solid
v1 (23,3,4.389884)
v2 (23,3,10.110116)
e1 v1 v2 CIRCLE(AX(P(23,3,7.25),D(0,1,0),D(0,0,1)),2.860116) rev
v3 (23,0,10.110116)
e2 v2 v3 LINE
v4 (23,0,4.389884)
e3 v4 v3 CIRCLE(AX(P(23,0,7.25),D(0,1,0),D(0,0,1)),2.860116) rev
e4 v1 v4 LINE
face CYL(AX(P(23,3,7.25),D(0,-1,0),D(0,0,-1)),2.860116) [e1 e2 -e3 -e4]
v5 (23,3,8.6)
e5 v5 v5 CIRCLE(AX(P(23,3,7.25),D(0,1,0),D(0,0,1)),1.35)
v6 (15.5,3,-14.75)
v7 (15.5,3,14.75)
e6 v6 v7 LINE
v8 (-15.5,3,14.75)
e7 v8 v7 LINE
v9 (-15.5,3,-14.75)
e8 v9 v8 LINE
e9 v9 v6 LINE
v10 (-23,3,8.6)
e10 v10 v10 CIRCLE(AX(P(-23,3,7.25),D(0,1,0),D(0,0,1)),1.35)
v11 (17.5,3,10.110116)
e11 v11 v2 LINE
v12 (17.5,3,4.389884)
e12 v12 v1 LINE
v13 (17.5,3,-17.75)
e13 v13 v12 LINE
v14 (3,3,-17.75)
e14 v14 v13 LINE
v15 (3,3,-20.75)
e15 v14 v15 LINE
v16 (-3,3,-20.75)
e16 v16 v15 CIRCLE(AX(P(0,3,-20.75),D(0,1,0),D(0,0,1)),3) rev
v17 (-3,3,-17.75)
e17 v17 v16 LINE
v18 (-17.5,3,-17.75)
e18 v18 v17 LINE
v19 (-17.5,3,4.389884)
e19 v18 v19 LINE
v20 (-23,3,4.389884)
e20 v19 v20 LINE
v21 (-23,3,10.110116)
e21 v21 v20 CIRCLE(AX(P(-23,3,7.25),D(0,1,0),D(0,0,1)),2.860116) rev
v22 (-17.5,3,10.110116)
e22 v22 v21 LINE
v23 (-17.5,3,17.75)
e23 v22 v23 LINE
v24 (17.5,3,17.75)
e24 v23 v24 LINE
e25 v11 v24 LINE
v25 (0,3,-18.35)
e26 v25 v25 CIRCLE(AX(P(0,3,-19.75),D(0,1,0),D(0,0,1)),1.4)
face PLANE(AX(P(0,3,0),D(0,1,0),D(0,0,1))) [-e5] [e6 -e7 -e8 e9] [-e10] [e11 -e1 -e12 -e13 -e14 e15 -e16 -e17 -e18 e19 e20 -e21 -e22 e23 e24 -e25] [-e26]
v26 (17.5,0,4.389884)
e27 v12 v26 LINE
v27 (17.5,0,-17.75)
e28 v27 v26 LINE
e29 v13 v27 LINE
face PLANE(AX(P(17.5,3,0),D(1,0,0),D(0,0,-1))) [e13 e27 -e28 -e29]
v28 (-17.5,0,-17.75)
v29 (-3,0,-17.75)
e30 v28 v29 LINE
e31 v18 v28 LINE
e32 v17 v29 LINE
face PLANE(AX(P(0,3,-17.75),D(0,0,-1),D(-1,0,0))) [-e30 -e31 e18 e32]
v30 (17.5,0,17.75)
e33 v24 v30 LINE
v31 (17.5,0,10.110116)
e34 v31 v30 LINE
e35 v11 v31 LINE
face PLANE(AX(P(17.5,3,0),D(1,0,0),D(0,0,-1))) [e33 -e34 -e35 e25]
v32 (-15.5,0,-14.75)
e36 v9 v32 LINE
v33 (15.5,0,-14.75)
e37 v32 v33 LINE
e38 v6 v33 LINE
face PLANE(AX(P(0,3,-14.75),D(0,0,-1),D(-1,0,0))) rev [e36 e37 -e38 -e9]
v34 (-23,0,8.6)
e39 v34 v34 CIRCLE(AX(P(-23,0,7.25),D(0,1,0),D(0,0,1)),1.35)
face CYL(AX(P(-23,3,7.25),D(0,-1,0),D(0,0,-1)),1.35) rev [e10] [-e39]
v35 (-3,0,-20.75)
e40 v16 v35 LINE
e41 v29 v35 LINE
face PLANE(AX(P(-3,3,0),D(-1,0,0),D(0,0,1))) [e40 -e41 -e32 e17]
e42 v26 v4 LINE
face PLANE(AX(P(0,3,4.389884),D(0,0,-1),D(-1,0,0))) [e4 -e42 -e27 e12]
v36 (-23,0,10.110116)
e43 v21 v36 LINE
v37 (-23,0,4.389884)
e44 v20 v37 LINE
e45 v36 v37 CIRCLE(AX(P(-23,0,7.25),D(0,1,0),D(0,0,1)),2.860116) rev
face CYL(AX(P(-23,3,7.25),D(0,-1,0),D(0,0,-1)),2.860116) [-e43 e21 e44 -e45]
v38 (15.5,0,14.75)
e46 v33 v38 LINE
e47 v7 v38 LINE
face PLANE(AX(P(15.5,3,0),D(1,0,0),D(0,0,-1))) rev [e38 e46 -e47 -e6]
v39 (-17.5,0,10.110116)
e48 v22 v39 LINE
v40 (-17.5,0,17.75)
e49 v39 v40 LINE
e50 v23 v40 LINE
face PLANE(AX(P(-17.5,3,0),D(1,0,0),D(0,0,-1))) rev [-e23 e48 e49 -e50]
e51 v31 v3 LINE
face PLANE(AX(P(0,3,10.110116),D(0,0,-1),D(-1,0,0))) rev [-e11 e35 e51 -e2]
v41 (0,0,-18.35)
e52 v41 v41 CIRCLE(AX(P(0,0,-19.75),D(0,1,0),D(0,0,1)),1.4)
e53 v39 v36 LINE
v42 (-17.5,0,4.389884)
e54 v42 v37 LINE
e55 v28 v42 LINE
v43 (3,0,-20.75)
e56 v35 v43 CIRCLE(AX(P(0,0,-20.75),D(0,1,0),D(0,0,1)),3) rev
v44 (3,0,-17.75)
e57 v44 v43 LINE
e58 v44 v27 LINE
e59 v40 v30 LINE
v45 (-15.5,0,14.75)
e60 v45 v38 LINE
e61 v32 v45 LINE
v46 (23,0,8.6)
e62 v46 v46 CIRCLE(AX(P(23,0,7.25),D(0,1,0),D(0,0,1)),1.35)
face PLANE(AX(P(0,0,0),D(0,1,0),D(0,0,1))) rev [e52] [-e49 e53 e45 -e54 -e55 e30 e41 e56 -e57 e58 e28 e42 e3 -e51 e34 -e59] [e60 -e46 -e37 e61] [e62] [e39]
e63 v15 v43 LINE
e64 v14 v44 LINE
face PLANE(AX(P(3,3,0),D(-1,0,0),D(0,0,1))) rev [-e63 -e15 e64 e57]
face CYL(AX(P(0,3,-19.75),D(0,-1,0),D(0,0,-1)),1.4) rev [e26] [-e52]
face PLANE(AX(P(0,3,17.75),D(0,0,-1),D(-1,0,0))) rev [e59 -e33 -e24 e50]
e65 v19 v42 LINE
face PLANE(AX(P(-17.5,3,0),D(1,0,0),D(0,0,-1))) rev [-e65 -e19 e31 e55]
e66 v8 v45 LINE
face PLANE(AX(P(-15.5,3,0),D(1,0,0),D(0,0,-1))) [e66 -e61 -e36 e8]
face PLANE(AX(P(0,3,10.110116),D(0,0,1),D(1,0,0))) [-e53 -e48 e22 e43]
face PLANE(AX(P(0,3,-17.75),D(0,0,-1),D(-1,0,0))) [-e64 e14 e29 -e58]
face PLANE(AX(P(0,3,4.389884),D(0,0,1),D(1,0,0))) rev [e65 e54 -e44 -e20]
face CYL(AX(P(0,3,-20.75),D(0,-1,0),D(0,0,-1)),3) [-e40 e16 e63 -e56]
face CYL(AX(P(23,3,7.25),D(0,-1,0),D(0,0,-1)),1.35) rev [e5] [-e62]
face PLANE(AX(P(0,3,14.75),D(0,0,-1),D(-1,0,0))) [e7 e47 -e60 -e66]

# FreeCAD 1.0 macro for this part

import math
import FreeCAD as App
import Part
import Sketcher

V = App.Vector
Q = App.Units.Quantity

doc = App.newDocument("Part")
body = doc.addObject("PartDesign::Body", "Body")

# Sketch on XZ plane
sketch1 = body.newObject("Sketcher::SketchObject", "Sketch")
sketch1.AttachmentSupport = (doc.getObject("XZ_Plane"), [""])
sketch1.MapMode = "FlatFace"
sketch1.addGeometry([
    Part.LineSegment(V(-23, 10.110116, 0), V(-17.5, 10.110116, 0)),  # 0
    Part.LineSegment(V(-17.5, 10.110116, 0), V(-17.5, 17.75, 0)),  # 1
    Part.LineSegment(V(-17.5, 17.75, 0), V(17.5, 17.75, 0)),  # 2
    Part.LineSegment(V(17.5, 17.75, 0), V(17.5, 10.110116, 0)),  # 3
    Part.LineSegment(V(17.5, 10.110116, 0), V(23, 10.110116, 0)),  # 4
    Part.ArcOfCircle(Part.Circle(V(23, 7.25, 0), V(0, 0, 1), 2.860116), math.radians(-90), math.radians(90)),  # 5
    Part.LineSegment(V(23, 4.389884, 0), V(17.5, 4.389884, 0)),  # 6
    Part.LineSegment(V(17.5, 4.389884, 0), V(17.5, -17.75, 0)),  # 7
    Part.LineSegment(V(17.5, -17.75, 0), V(3, -17.75, 0)),  # 8
    Part.LineSegment(V(3, -17.75, 0), V(3, -20.75, 0)),  # 9
    Part.ArcOfCircle(Part.Circle(V(0, -20.75, 0), V(0, 0, 1), 3), math.radians(180), math.radians(360)),  # 10
    Part.LineSegment(V(-3, -20.75, 0), V(-3, -17.75, 0)),  # 11
    Part.LineSegment(V(-3, -17.75, 0), V(-17.5, -17.75, 0)),  # 12
    Part.LineSegment(V(-17.5, -17.75, 0), V(-17.5, 4.389884, 0)),  # 13
    Part.LineSegment(V(-17.5, 4.389884, 0), V(-23, 4.389884, 0)),  # 14
    Part.ArcOfCircle(Part.Circle(V(-23, 7.25, 0), V(0, 0, 1), 2.860116), math.radians(90), math.radians(270)),  # 15
    Part.Circle(V(-23, 7.25, 0), V(0, 0, 1), 1.35),  # 16
    Part.LineSegment(V(-15.5, 14.75, 0), V(-15.5, -14.75, 0)),  # 17
    Part.LineSegment(V(-15.5, -14.75, 0), V(15.5, -14.75, 0)),  # 18
    Part.LineSegment(V(15.5, -14.75, 0), V(15.5, 14.75, 0)),  # 19
    Part.LineSegment(V(15.5, 14.75, 0), V(-15.5, 14.75, 0)),  # 20
    Part.Circle(V(0, -19.75, 0), V(0, 0, 1), 1.4),  # 21
    Part.Circle(V(23, 7.25, 0), V(0, 0, 1), 1.35),  # 22
], False)
sketch1.addConstraint([
    Sketcher.Constraint("Coincident", 0, 2, 1, 1),
    Sketcher.Constraint("Coincident", 1, 2, 2, 1),
    Sketcher.Constraint("Coincident", 2, 2, 3, 1),
    Sketcher.Constraint("Coincident", 3, 2, 4, 1),
    Sketcher.Constraint("Tangent", 4, 2, 5, 2),
    Sketcher.Constraint("Tangent", 5, 1, 6, 1),
    Sketcher.Constraint("Coincident", 6, 2, 7, 1),
    Sketcher.Constraint("Coincident", 7, 2, 8, 1),
    Sketcher.Constraint("Coincident", 8, 2, 9, 1),
    Sketcher.Constraint("Tangent", 9, 2, 10, 2),
    Sketcher.Constraint("Tangent", 10, 1, 11, 1),
    Sketcher.Constraint("Coincident", 11, 2, 12, 1),
    Sketcher.Constraint("Coincident", 12, 2, 13, 1),
    Sketcher.Constraint("Coincident", 13, 2, 14, 1),
    Sketcher.Constraint("Tangent", 14, 2, 15, 2),
    Sketcher.Constraint("Tangent", 15, 1, 0, 1),
    Sketcher.Constraint("Coincident", 17, 2, 18, 1),
    Sketcher.Constraint("Coincident", 18, 2, 19, 1),
    Sketcher.Constraint("Coincident", 19, 2, 20, 1),
    Sketcher.Constraint("Coincident", 20, 2, 17, 1),
    Sketcher.Constraint("Horizontal", 0),
    Sketcher.Constraint("Vertical", 1),
    Sketcher.Constraint("Horizontal", 2),
    Sketcher.Constraint("Vertical", 3),
    Sketcher.Constraint("Horizontal", 4),
    Sketcher.Constraint("Horizontal", 6),
    Sketcher.Constraint("Vertical", 7),
    Sketcher.Constraint("Horizontal", 8),
    Sketcher.Constraint("Vertical", 9),
    Sketcher.Constraint("Vertical", 11),
    Sketcher.Constraint("Horizontal", 12),
    Sketcher.Constraint("Vertical", 13),
    Sketcher.Constraint("Horizontal", 14),
    Sketcher.Constraint("Vertical", 17),
    Sketcher.Constraint("Horizontal", 18),
    Sketcher.Constraint("Vertical", 19),
    Sketcher.Constraint("Horizontal", 20),
    Sketcher.Constraint("Coincident", 16, 3, 15, 3),
    Sketcher.Constraint("Coincident", 22, 3, 5, 3),
    Sketcher.Constraint("Equal", 5, 15),
    Sketcher.Constraint("Equal", 16, 22),
    Sketcher.Constraint("Symmetric", 1, 2, 7, 2, -1, 1),
    Sketcher.Constraint("Symmetric", 2, 2, 12, 2, -1, 1),
    Sketcher.Constraint("Symmetric", 17, 2, 19, 2, -1, 1),
    Sketcher.Constraint("Symmetric", 5, 3, 15, 3, -2),
    Sketcher.Constraint("PointOnObject", 10, 3, -2),
    Sketcher.Constraint("PointOnObject", 21, 3, -2),
    Sketcher.Constraint("Vertical", 3, 2, 6, 2),
    Sketcher.Constraint("Radius", 10, Q("3 mm")),
    Sketcher.Constraint("Diameter", 16, Q("2.7 mm")),
    Sketcher.Constraint("Diameter", 21, Q("2.8 mm")),
    Sketcher.Constraint("DistanceX", 2, 1, 2, 2, Q("35 mm")),
    Sketcher.Constraint("DistanceX", 18, 1, 18, 2, Q("31 mm")),
    Sketcher.Constraint("DistanceY", 9, 2, 9, 1, Q("3 mm")),
    Sketcher.Constraint("DistanceX", 0, 1, 0, 2, Q("5.5 mm")),
    Sketcher.Constraint("DistanceY", 17, 2, 17, 1, Q("29.5 mm")),
    Sketcher.Constraint("DistanceY", 10, 3, 5, 3, Q("28 mm")),
    Sketcher.Constraint("DistanceY", 10, 3, 21, 3, Q("1 mm")),
    Sketcher.Constraint("DistanceY", 12, 2, 17, 2, Q("3 mm")),
    Sketcher.Constraint("Radius", 5, Q("2.860116 mm")),
])
pad1 = body.newObject("PartDesign::Pad", "Pad")
pad1.Profile = sketch1
pad1.Length = 3
pad1.Reversed = True

doc.recompute()
